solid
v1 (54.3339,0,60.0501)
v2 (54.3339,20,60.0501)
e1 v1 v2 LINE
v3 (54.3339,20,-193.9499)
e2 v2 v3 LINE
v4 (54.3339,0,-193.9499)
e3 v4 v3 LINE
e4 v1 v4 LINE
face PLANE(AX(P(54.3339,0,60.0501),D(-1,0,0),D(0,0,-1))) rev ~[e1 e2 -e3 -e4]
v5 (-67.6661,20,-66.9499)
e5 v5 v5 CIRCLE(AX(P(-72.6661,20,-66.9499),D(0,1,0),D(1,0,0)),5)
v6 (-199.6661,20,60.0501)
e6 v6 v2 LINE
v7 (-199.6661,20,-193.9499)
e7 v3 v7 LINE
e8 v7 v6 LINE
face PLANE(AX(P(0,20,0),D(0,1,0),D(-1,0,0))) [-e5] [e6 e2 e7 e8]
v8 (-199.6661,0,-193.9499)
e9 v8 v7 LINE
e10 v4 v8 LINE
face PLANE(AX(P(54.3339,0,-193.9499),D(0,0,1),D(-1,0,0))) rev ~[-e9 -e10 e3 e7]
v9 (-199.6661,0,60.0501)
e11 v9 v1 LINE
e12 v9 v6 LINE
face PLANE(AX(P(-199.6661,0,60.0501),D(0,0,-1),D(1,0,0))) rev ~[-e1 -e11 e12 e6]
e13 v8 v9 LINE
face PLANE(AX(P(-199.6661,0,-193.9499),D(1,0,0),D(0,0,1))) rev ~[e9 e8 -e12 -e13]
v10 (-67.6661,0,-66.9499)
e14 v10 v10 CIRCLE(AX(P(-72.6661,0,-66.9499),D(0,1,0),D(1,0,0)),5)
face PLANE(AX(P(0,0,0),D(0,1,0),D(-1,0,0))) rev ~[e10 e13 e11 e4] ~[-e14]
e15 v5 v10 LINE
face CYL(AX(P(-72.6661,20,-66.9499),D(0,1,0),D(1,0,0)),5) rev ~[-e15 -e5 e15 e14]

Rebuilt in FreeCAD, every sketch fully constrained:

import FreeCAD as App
import Part
import Sketcher

V = App.Vector
Q = App.Units.Quantity

doc = App.newDocument("Part")
body = doc.addObject("PartDesign::Body", "Body")

sketch1 = doc.addObject("Sketcher::SketchObject", "Sketch")
body.addObject(sketch1)
sketch1.AttachmentSupport = (doc.XZ_Plane, [""])
sketch1.MapMode = "FlatFace"
sketch1.addGeometry([
    Part.LineSegment(V(-199.6661, 60.0501, 0), V(54.3339, 60.0501, 0)),
    Part.LineSegment(V(54.3339, 60.0501, 0), V(54.3339, -193.9499, 0)),
    Part.LineSegment(V(54.3339, -193.9499, 0), V(-199.6661, -193.9499, 0)),
    Part.LineSegment(V(-199.6661, -193.9499, 0), V(-199.6661, 60.0501, 0)),
], False)
sketch1.addConstraint([
    Sketcher.Constraint("Coincident", 0, 2, 1, 1),
    Sketcher.Constraint("Coincident", 1, 2, 2, 1),
    Sketcher.Constraint("Coincident", 2, 2, 3, 1),
    Sketcher.Constraint("Coincident", 3, 2, 0, 1),
    Sketcher.Constraint("Horizontal", 0),
    Sketcher.Constraint("Vertical", 1),
    Sketcher.Constraint("Horizontal", 2),
    Sketcher.Constraint("Vertical", 3),
    Sketcher.Constraint("Equal", 2, 1),
    Sketcher.Constraint("DistanceX", 0, 1, 0, 2, Q("10 in")),
    Sketcher.Constraint("DistanceX", -1, 1, 0, 2, Q("54.334 mm")),
    Sketcher.Constraint("DistanceY", -1, 1, 0, 2, Q("60.05 mm")),
])
pad1 = doc.addObject("PartDesign::Pad", "Pad")
body.addObject(pad1)
pad1.Profile = sketch1
pad1.Length = Q("0.7874016 in")
pad1.Reversed = True

sketch2 = doc.addObject("Sketcher::SketchObject", "Sketch001")
body.addObject(sketch2)
sketch2.AttachmentSupport = (doc.XZ_Plane, [""])
sketch2.MapMode = "FlatFace"
sketch2.AttachmentOffset = App.Placement(V(0, 0, -0.7874016 * 25.4), App.Rotation())
sketch2.addGeometry(Part.Circle(V(-72.6661, -66.9499, 0), V(0, 0, 1), 5), False)
sketch2.addConstraint([
    Sketcher.Constraint("Diameter", 0, Q("0.3937 in")),
    Sketcher.Constraint("DistanceX", 0, 3, -1, 1, Q("72.666 mm")),
    Sketcher.Constraint("DistanceY", 0, 3, -1, 1, Q("66.95 mm")),
])
pocket1 = doc.addObject("PartDesign::Pocket", "Pocket")
body.addObject(pocket1)
pocket1.Profile = sketch2
pocket1.Length = Q("1 in")
pocket1.Reversed = True

doc.recompute()
